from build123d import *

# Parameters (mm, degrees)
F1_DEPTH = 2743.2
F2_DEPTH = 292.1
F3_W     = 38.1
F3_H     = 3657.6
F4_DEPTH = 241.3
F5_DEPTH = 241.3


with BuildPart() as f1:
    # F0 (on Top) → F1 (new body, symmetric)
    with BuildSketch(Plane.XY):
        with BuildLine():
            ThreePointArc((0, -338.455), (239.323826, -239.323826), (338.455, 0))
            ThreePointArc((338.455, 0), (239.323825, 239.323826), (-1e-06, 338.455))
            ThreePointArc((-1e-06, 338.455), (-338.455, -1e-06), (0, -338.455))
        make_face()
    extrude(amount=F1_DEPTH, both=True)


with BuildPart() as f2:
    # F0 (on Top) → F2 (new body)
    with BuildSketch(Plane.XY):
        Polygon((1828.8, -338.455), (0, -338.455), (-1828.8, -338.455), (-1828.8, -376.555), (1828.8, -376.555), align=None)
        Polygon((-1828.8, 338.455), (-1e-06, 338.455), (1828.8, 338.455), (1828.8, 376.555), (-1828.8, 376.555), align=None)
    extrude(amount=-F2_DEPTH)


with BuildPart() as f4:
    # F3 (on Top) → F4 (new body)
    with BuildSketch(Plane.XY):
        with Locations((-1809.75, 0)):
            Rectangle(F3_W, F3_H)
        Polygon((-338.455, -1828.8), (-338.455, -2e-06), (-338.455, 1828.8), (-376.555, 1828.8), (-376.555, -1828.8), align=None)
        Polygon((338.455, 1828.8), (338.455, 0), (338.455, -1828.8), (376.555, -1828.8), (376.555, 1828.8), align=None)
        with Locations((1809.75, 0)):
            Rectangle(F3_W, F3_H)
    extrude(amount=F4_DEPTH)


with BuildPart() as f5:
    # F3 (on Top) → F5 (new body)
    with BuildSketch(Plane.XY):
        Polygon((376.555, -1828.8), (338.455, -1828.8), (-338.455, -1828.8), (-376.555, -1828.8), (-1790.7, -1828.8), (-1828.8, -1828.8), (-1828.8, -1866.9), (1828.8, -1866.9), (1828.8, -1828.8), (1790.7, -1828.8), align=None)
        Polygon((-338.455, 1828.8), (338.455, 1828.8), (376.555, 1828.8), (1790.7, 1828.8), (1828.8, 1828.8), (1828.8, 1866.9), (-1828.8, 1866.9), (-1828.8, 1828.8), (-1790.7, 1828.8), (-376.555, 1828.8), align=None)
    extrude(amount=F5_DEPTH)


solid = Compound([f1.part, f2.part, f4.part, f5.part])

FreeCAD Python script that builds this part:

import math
import FreeCAD as App
import Part
import Sketcher
Q = App.Units.Quantity


def add_polygon(sketch, points):
    """Adds a closed chain of lines whose ends are joined by coincident constraints."""
    first, n = sketch.GeometryCount, len(points)
    for a, b in zip(points, points[1:] + points[:1]):
        sketch.addGeometry(Part.LineSegment(App.Vector(*a, 0), App.Vector(*b, 0)), False)
    for i in range(n):
        sketch.addConstraint(Sketcher.Constraint("Coincident", first + i, 2, first + (i + 1) % n, 1))

doc = App.newDocument("Part")
body = doc.addObject("PartDesign::Body", "Body")

# Sketch on XY plane
sketch1 = body.newObject("Sketcher::SketchObject", "Sketch")
sketch1.AttachmentSupport = (doc.getObject("XY_Plane"), [""])
sketch1.MapMode = "FlatFace"
sketch1.addGeometry([
    Part.ArcOfCircle(Part.Circle(App.Vector(0, 0, 0), App.Vector(0, 0, 1), 338), math.radians(-90), math.radians(0)),
    Part.ArcOfCircle(Part.Circle(App.Vector(0, 0, 0), App.Vector(0, 0, 1), 338), math.radians(0), math.radians(90)),
    Part.ArcOfCircle(Part.Circle(App.Vector(0, 0, 0), App.Vector(0, 0, 1), 338), math.radians(90), math.radians(270)),
], False)
sketch1.addConstraint([
    Sketcher.Constraint("Tangent", 0, 2, 1, 1),
    Sketcher.Constraint("Tangent", 1, 2, 2, 1),
    Sketcher.Constraint("Coincident", 2, 2, 0, 1),
    Sketcher.Constraint("Coincident", 0, 3, -1, 1),
    Sketcher.Constraint("Equal", 0, 1),
    Sketcher.Constraint("PointOnObject", 0, 2, -1),
    Sketcher.Constraint("PointOnObject", 1, 2, -2),
    Sketcher.Constraint("PointOnObject", 2, 2, -2),
    Sketcher.Constraint("Radius", 0, Q("13.3249999 in")),
])
pad1 = body.newObject("PartDesign::Pad", "Pad")
pad1.Profile = sketch1
pad1.Length = Q("216 in")
pad1.Midplane = True
body2 = doc.addObject("PartDesign::Body", "Body001")
body2.AllowCompound = True

# Sketch on XY plane
sketch2 = body2.newObject("Sketcher::SketchObject", "Sketch001")
sketch2.AttachmentSupport = (doc.getObject("XY_Plane001"), [""])
sketch2.MapMode = "FlatFace"
add_polygon(sketch2, [(1829, -338), (-1829, -338), (-1829, -377), (1829, -377)])  # lines 0-3
add_polygon(sketch2, [(-1829, 338), (1829, 338), (1829, 377), (-1829, 377)])  # lines 4-7
sketch2.addConstraint([
    Sketcher.Constraint("Horizontal", 0),
    Sketcher.Constraint("Vertical", 1),
    Sketcher.Constraint("Horizontal", 2),
    Sketcher.Constraint("Vertical", 3),
    Sketcher.Constraint("Horizontal", 4),
    Sketcher.Constraint("Vertical", 5),
    Sketcher.Constraint("Horizontal", 6),
    Sketcher.Constraint("Vertical", 7),
    Sketcher.Constraint("Symmetric", 0, 2, 4, 2, -1, 1),
    Sketcher.Constraint("Symmetric", 2, 2, 6, 2, -1, 1),
    Sketcher.Constraint("Vertical", 3, 2, 4, 2),
    Sketcher.Constraint("DistanceX", 0, 2, 0, 1, Q("144 in")),
    Sketcher.Constraint("DistanceY", 1, 2, 1, 1, Q("1.5 in")),
    Sketcher.Constraint("DistanceY", 3, 2, 4, 2, Q("26.65 in")),
])
pad2 = body2.newObject("PartDesign::Pad", "Pad001")
pad2.Profile = sketch2
pad2.Length = Q("11.5 in")
pad2.Reversed = True
body3 = doc.addObject("PartDesign::Body", "Body002")
body3.AllowCompound = True

# Sketch on XY plane
sketch3 = body3.newObject("Sketcher::SketchObject", "Sketch002")
sketch3.AttachmentSupport = (doc.getObject("XY_Plane002"), [""])
sketch3.MapMode = "FlatFace"
add_polygon(sketch3, [(-1829, 1829), (-1829, -1829), (-1791, -1829), (-1791, 1829)])  # lines 0-3
add_polygon(sketch3, [(-338, -1829), (-338, 1829), (-377, 1829), (-377, -1829)])  # lines 4-7
add_polygon(sketch3, [(338, 1829), (338, -1829), (377, -1829), (377, 1829)])  # lines 8-11
add_polygon(sketch3, [(1791, 1829), (1791, -1829), (1829, -1829), (1829, 1829)])  # lines 12-15
sketch3.addConstraint([
    Sketcher.Constraint("Vertical", 0),
    Sketcher.Constraint("Horizontal", 1),
    Sketcher.Constraint("Vertical", 2),
    Sketcher.Constraint("Horizontal", 3),
    Sketcher.Constraint("Vertical", 4),
    Sketcher.Constraint("Horizontal", 5),
    Sketcher.Constraint("Vertical", 6),
    Sketcher.Constraint("Horizontal", 7),
    Sketcher.Constraint("Vertical", 8),
    Sketcher.Constraint("Horizontal", 9),
    Sketcher.Constraint("Vertical", 10),
    Sketcher.Constraint("Horizontal", 11),
    Sketcher.Constraint("Vertical", 12),
    Sketcher.Constraint("Horizontal", 13),
    Sketcher.Constraint("Vertical", 14),
    Sketcher.Constraint("Horizontal", 15),
    Sketcher.Constraint("Symmetric", 4, 2, 8, 2, -1, 1),
    Sketcher.Constraint("Symmetric", 6, 2, 10, 2, -1, 1),
    Sketcher.Constraint("Symmetric", 2, 2, 12, 2, -1, 1),
    Sketcher.Constraint("Symmetric", 0, 2, 14, 2, -1, 1),
    Sketcher.Constraint("Horizontal", 3, 2, 4, 2),
    Sketcher.Constraint("Horizontal", 1, 2, 6, 2),
    Sketcher.Constraint("Horizontal", 7, 2, 8, 2),
    Sketcher.Constraint("Equal", 3, 5),
    Sketcher.Constraint("DistanceY", 0, 2, 0, 1, Q("144 in")),
    Sketcher.Constraint("DistanceX", 1, 1, 1, 2, Q("1.5 in")),
    Sketcher.Constraint("DistanceX", 0, 2, -1, 1, Q("72 in")),
    Sketcher.Constraint("DistanceX", 7, 2, 8, 2, Q("26.65 in")),
])
pad3 = body3.newObject("PartDesign::Pad", "Pad002")
pad3.Profile = sketch3
pad3.Length = Q("9.5 in")
body4 = doc.addObject("PartDesign::Body", "Body003")
body4.AllowCompound = True

# Sketch on XY plane
sketch4 = body4.newObject("Sketcher::SketchObject", "Sketch003")
sketch4.AttachmentSupport = (doc.getObject("XY_Plane003"), [""])
sketch4.MapMode = "FlatFace"
add_polygon(sketch4, [(-1829, -1829), (-1829, -1867), (1829, -1867), (1829, -1829)])  # lines 0-3
add_polygon(sketch4, [(1829, 1829), (1829, 1867), (-1829, 1867), (-1829, 1829)])  # lines 4-7
sketch4.addConstraint([
    Sketcher.Constraint("Vertical", 0),
    Sketcher.Constraint("Horizontal", 1),
    Sketcher.Constraint("Vertical", 2),
    Sketcher.Constraint("Horizontal", 3),
    Sketcher.Constraint("Vertical", 4),
    Sketcher.Constraint("Horizontal", 5),
    Sketcher.Constraint("Vertical", 6),
    Sketcher.Constraint("Horizontal", 7),
    Sketcher.Constraint("Symmetric", 0, 2, 4, 2, -1, 1),
    Sketcher.Constraint("Symmetric", 2, 2, 6, 2, -1, 1),
    Sketcher.Constraint("Vertical", 2, 2, 4, 2),
    Sketcher.Constraint("DistanceX", 1, 1, 1, 2, Q("144 in")),
    Sketcher.Constraint("DistanceY", 0, 2, 0, 1, Q("1.5 in")),
    Sketcher.Constraint("DistanceY", 2, 2, -1, 1, Q("72 in")),
])
pad4 = body4.newObject("PartDesign::Pad", "Pad003")
pad4.Profile = sketch4
pad4.Length = Q("9.5 in")

doc.recompute()
